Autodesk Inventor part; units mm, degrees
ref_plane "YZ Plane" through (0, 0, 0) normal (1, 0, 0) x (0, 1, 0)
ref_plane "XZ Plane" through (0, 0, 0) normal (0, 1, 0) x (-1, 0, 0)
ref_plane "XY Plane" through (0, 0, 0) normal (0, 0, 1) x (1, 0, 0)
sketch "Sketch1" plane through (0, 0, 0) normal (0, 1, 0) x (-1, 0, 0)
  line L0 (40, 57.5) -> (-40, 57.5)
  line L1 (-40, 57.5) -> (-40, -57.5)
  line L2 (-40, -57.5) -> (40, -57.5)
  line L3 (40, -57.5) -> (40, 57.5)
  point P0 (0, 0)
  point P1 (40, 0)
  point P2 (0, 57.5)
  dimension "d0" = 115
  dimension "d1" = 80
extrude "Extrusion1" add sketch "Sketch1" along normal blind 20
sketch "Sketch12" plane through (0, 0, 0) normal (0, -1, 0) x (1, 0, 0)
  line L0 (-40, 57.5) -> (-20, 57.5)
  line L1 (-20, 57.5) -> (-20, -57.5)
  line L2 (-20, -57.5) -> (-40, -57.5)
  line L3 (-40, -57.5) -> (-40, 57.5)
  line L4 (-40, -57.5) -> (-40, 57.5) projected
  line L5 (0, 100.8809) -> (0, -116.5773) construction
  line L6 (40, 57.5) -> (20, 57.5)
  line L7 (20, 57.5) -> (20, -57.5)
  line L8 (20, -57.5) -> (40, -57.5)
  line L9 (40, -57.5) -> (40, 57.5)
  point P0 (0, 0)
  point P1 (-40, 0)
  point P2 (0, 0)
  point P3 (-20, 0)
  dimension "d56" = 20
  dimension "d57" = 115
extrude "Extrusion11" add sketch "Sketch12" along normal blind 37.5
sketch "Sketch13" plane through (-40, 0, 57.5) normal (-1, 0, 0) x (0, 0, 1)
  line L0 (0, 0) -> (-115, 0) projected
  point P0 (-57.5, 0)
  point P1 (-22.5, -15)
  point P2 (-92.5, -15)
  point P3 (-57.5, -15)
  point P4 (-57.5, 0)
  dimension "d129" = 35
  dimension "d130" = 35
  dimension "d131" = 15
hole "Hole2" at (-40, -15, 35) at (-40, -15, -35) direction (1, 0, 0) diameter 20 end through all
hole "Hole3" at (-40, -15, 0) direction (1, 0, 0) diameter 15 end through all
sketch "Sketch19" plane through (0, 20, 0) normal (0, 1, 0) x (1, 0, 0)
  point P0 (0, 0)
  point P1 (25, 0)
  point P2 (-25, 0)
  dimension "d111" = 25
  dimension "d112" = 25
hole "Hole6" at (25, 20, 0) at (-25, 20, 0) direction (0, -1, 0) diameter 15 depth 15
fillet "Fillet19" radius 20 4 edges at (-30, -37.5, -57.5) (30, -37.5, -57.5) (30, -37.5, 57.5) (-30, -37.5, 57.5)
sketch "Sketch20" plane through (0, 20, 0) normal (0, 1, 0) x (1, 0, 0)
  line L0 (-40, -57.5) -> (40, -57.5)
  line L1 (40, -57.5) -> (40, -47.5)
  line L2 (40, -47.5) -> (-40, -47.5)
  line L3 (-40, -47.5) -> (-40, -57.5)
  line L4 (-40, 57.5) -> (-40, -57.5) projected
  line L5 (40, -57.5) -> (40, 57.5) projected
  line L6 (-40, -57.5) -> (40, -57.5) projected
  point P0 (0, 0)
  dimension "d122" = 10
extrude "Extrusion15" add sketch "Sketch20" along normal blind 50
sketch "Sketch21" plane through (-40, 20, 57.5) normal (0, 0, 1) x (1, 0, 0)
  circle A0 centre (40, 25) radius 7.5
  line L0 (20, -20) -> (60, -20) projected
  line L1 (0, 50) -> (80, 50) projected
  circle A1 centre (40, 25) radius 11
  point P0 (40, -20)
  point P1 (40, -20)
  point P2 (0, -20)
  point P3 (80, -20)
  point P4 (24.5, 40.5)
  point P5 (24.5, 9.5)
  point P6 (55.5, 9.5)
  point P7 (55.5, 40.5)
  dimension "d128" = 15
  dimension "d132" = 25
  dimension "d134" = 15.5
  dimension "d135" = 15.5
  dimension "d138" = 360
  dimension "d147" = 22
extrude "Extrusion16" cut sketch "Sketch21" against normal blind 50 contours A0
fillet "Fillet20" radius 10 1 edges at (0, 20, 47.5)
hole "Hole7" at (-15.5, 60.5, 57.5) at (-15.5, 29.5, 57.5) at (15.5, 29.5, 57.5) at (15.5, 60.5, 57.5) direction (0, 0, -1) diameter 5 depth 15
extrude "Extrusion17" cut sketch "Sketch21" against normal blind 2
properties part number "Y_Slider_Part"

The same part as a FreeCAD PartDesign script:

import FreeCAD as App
import Part
import Sketcher

V = App.Vector
Q = App.Units.Quantity


def edges_at(feature, points):
    """Names of the edges that pass closest to the given points."""
    edges = feature.Shape.Edges
    near = lambda p: min(range(len(edges)), key=lambda i: edges[i].distToShape(Part.Vertex(*p))[0])
    return sorted({f"Edge{near(p) + 1}" for p in points})


def add_polygon(sketch, points):
    """Adds a closed chain of lines whose ends are joined by coincident constraints."""
    first, n = sketch.GeometryCount, len(points)
    for a, b in zip(points, points[1:] + points[:1]):
        sketch.addGeometry(Part.LineSegment(App.Vector(*a, 0), App.Vector(*b, 0)), False)
    for i in range(n):
        sketch.addConstraint(Sketcher.Constraint("Coincident", first + i, 2, first + (i + 1) % n, 1))

doc = App.newDocument("Part")
body = doc.addObject("PartDesign::Body", "Body")

# Sketch on XZ plane
sketch1 = doc.addObject("Sketcher::SketchObject", "Sketch")
body.addObject(sketch1)
sketch1.AttachmentSupport = (doc.XZ_Plane, [""])
sketch1.MapMode = "FlatFace"
add_polygon(sketch1, [(-40, -58), (-40, 58), (40, 58), (40, -58)])  # lines 0-3
sketch1.addConstraint(Sketcher.Constraint("Vertical", 0))
sketch1.addConstraint(Sketcher.Constraint("Horizontal", 1))
sketch1.addConstraint(Sketcher.Constraint("Vertical", 2))
sketch1.addConstraint(Sketcher.Constraint("Horizontal", 3))
sketch1.addConstraint(Sketcher.Constraint("Symmetric", 0, 2, 2, 2, -1, 1))
sketch1.addConstraint(Sketcher.Constraint("DistanceX", 1, 1, 1, 2, Q("80 mm")))
sketch1.addConstraint(Sketcher.Constraint("DistanceY", 0, 1, 0, 2, Q("115 mm")))
pad1 = doc.addObject("PartDesign::Pad", "Pad")
body.addObject(pad1)
pad1.Profile = sketch1
pad1.Length = 20
pad1.Reversed = True

# Sketch on XZ plane
sketch2 = doc.addObject("Sketcher::SketchObject", "Sketch001")
body.addObject(sketch2)
sketch2.AttachmentSupport = (doc.XZ_Plane, [""])
sketch2.MapMode = "FlatFace"
add_polygon(sketch2, [(-20, 58), (-40, 58), (-40, -58), (-20, -58)])  # lines 0-3
add_polygon(sketch2, [(40, -58), (40, 58), (20, 58), (20, -58)])  # lines 4-7
sketch2.addConstraint(Sketcher.Constraint("Horizontal", 0))
sketch2.addConstraint(Sketcher.Constraint("Vertical", 1))
sketch2.addConstraint(Sketcher.Constraint("Horizontal", 2))
sketch2.addConstraint(Sketcher.Constraint("Vertical", 3))
sketch2.addConstraint(Sketcher.Constraint("Vertical", 4))
sketch2.addConstraint(Sketcher.Constraint("Horizontal", 5))
sketch2.addConstraint(Sketcher.Constraint("Vertical", 6))
sketch2.addConstraint(Sketcher.Constraint("Horizontal", 7))
sketch2.addConstraint(Sketcher.Constraint("Symmetric", 1, 2, 4, 2, -1, 1))
sketch2.addConstraint(Sketcher.Constraint("Symmetric", 3, 2, 6, 2, -1, 1))
sketch2.addConstraint(Sketcher.Constraint("Horizontal", 3, 2, 4, 2))
sketch2.addConstraint(Sketcher.Constraint("DistanceX", 0, 2, 0, 1, Q("20 mm")))
sketch2.addConstraint(Sketcher.Constraint("DistanceY", 1, 2, 1, 1, Q("115 mm")))
sketch2.addConstraint(Sketcher.Constraint("DistanceX", 2, 2, -1, 1, Q("20 mm")))
pad2 = doc.addObject("PartDesign::Pad", "Pad001")
body.addObject(pad2)
pad2.Profile = sketch2
pad2.Length = 37.5

# Sketch on YZ plane
sketch3 = doc.addObject("Sketcher::SketchObject", "Sketch002")
body.addObject(sketch3)
sketch3.AttachmentSupport = (doc.YZ_Plane, [""])
sketch3.MapMode = "FlatFace"
sketch3.AttachmentOffset = App.Placement(V(0, 0, -40), App.Rotation())
sketch3.addGeometry(Part.Circle(V(-15, 35, 0), V(0, 0, 1), 10), False)
sketch3.addGeometry(Part.Circle(V(-15, -35, 0), V(0, 0, 1), 10), False)
sketch3.addConstraint(Sketcher.Constraint("Equal", 0, 1))
sketch3.addConstraint(Sketcher.Constraint("Symmetric", 0, 3, 1, 3, -1))
sketch3.addConstraint(Sketcher.Constraint("Diameter", 0, Q("20 mm")))
sketch3.addConstraint(Sketcher.Constraint("DistanceX", 0, 3, -1, 1, Q("15 mm")))
sketch3.addConstraint(Sketcher.Constraint("DistanceY", -1, 1, 0, 3, Q("35 mm")))
doc.recompute()
hole = doc.addObject("PartDesign::Hole", "Hole")
body.addObject(hole)
hole.Profile = sketch3
hole.ThreadType = "None"
hole.Diameter = 20
hole.DepthType = "ThroughAll"
hole.Reversed = True

# Sketch on YZ plane
sketch4 = doc.addObject("Sketcher::SketchObject", "Sketch003")
body.addObject(sketch4)
sketch4.AttachmentSupport = (doc.YZ_Plane, [""])
sketch4.MapMode = "FlatFace"
sketch4.AttachmentOffset = App.Placement(V(0, 0, -40), App.Rotation())
sketch4.addGeometry(Part.Circle(V(-15, 0, 0), V(0, 0, 1), 8), False)
sketch4.addConstraint(Sketcher.Constraint("PointOnObject", 0, 3, -1))
sketch4.addConstraint(Sketcher.Constraint("Diameter", 0, Q("15 mm")))
sketch4.addConstraint(Sketcher.Constraint("DistanceX", 0, 3, -1, 1, Q("15 mm")))
doc.recompute()
hole2 = doc.addObject("PartDesign::Hole", "Hole001")
body.addObject(hole2)
hole2.Profile = sketch4
hole2.ThreadType = "None"
hole2.Diameter = 15
hole2.DepthType = "ThroughAll"
hole2.Reversed = True

# Sketch on XZ plane
sketch5 = doc.addObject("Sketcher::SketchObject", "Sketch004")
body.addObject(sketch5)
sketch5.AttachmentSupport = (doc.XZ_Plane, [""])
sketch5.MapMode = "FlatFace"
sketch5.AttachmentOffset = App.Placement(V(0, 0, -20), App.Rotation())
sketch5.addGeometry(Part.Circle(V(25, 0, 0), V(0, 0, 1), 8), False)
sketch5.addGeometry(Part.Circle(V(-25, 0, 0), V(0, 0, 1), 8), False)
sketch5.addConstraint(Sketcher.Constraint("Equal", 0, 1))
sketch5.addConstraint(Sketcher.Constraint("Symmetric", 0, 3, 1, 3, -1, 1))
sketch5.addConstraint(Sketcher.Constraint("PointOnObject", 0, 3, -1))
sketch5.addConstraint(Sketcher.Constraint("Diameter", 0, Q("15 mm")))
sketch5.addConstraint(Sketcher.Constraint("DistanceX", -1, 1, 0, 3, Q("25 mm")))
doc.recompute()
hole3 = doc.addObject("PartDesign::Hole", "Hole002")
body.addObject(hole3)
hole3.Profile = sketch5
hole3.ThreadType = "None"
hole3.Diameter = 15
hole3.DepthType = "Dimension"
hole3.Depth = 15
hole3.DrillPoint = "Flat"
hole3.Reversed = True
doc.recompute()

fillet = doc.addObject("PartDesign::Fillet", "Fillet")
body.addObject(fillet)
fillet.Base = (hole3, edges_at(hole3, [
    (-30, -37.5, -57.5),
    (30, -37.5, -57.5),
    (30, -37.5, 57.5),
    (-30, -37.5, 57.5),
]))
fillet.Radius = 20

# Sketch on XZ plane
sketch6 = doc.addObject("Sketcher::SketchObject", "Sketch005")
body.addObject(sketch6)
sketch6.AttachmentSupport = (doc.XZ_Plane, [""])
sketch6.MapMode = "FlatFace"
sketch6.AttachmentOffset = App.Placement(V(0, 0, -20), App.Rotation())
add_polygon(sketch6, [(-40, 48), (-40, 58), (40, 58), (40, 48)])  # lines 0-3
sketch6.addConstraint(Sketcher.Constraint("Vertical", 0))
sketch6.addConstraint(Sketcher.Constraint("Horizontal", 1))
sketch6.addConstraint(Sketcher.Constraint("Vertical", 2))
sketch6.addConstraint(Sketcher.Constraint("Horizontal", 3))
sketch6.addConstraint(Sketcher.Constraint("DistanceY", 0, 1, 0, 2, Q("10 mm")))
sketch6.addConstraint(Sketcher.Constraint("DistanceX", 1, 1, 1, 2, Q("80 mm")))
sketch6.addConstraint(Sketcher.Constraint("DistanceX", 0, 2, -1, 1, Q("40 mm")))
sketch6.addConstraint(Sketcher.Constraint("DistanceY", -1, 1, 0, 2, Q("57.5 mm")))
pad3 = doc.addObject("PartDesign::Pad", "Pad002")
body.addObject(pad3)
pad3.Profile = sketch6
pad3.Length = 50
pad3.Reversed = True

# Sketch on XY plane
sketch7 = doc.addObject("Sketcher::SketchObject", "Sketch006")
body.addObject(sketch7)
sketch7.AttachmentSupport = (doc.XY_Plane, [""])
sketch7.MapMode = "FlatFace"
sketch7.AttachmentOffset = App.Placement(V(0, 0, 57.5), App.Rotation())
sketch7.addGeometry(Part.Circle(V(0, 45, 0), V(0, 0, 1), 8), False)
sketch7.addConstraint(Sketcher.Constraint("PointOnObject", 0, 3, -2))
sketch7.addConstraint(Sketcher.Constraint("Diameter", 0, Q("15 mm")))
sketch7.addConstraint(Sketcher.Constraint("DistanceY", -1, 1, 0, 3, Q("45 mm")))
pocket1 = doc.addObject("PartDesign::Pocket", "Pocket")
body.addObject(pocket1)
pocket1.Profile = sketch7
pocket1.Length = 50
doc.recompute()

fillet2 = doc.addObject("PartDesign::Fillet", "Fillet001")
body.addObject(fillet2)
fillet2.Base = (pocket1, edges_at(pocket1, [(0, 20, 47.5)]))
fillet2.Radius = 10

# Sketch on XY plane
sketch8 = doc.addObject("Sketcher::SketchObject", "Sketch007")
body.addObject(sketch8)
sketch8.AttachmentSupport = (doc.XY_Plane, [""])
sketch8.MapMode = "FlatFace"
sketch8.AttachmentOffset = App.Placement(V(0, 0, 57.5), App.Rotation())
sketch8.addGeometry(Part.Circle(V(-15.5, 60.5, 0), V(0, 0, 1), 2.5), False)
sketch8.addGeometry(Part.Circle(V(-15.5, 29.5, 0), V(0, 0, 1), 2.5), False)
sketch8.addGeometry(Part.Circle(V(15.5, 29.5, 0), V(0, 0, 1), 2.5), False)
sketch8.addGeometry(Part.Circle(V(15.5, 60.5, 0), V(0, 0, 1), 2.5), False)
sketch8.addConstraint(Sketcher.Constraint("Equal", 0, 1))
sketch8.addConstraint(Sketcher.Constraint("Equal", 1, 2))
sketch8.addConstraint(Sketcher.Constraint("Equal", 2, 3))
sketch8.addConstraint(Sketcher.Constraint("Symmetric", 1, 3, 2, 3, -2))
sketch8.addConstraint(Sketcher.Constraint("Symmetric", 0, 3, 3, 3, -2))
sketch8.addConstraint(Sketcher.Constraint("Vertical", 0, 3, 1, 3))
sketch8.addConstraint(Sketcher.Constraint("Diameter", 0, Q("5 mm")))
sketch8.addConstraint(Sketcher.Constraint("DistanceY", 1, 3, 0, 3, Q("31 mm")))
sketch8.addConstraint(Sketcher.Constraint("DistanceX", 1, 3, 2, 3, Q("31 mm")))
sketch8.addConstraint(Sketcher.Constraint("DistanceY", -1, 1, 0, 3, Q("60.5 mm")))
doc.recompute()
hole4 = doc.addObject("PartDesign::Hole", "Hole003")
body.addObject(hole4)
hole4.Profile = sketch8
hole4.ThreadType = "None"
hole4.Diameter = 5
hole4.DepthType = "Dimension"
hole4.Depth = 15
hole4.DrillPoint = "Flat"

# Sketch on XY plane
sketch9 = doc.addObject("Sketcher::SketchObject", "Sketch008")
body.addObject(sketch9)
sketch9.AttachmentSupport = (doc.XY_Plane, [""])
sketch9.MapMode = "FlatFace"
sketch9.AttachmentOffset = App.Placement(V(0, 0, 57.5), App.Rotation())
sketch9.addGeometry(Part.Circle(V(0, 45, 0), V(0, 0, 1), 11), False)
sketch9.addGeometry(Part.Circle(V(0, 45, 0), V(0, 0, 1), 8), False)
sketch9.addConstraint(Sketcher.Constraint("Coincident", 1, 3, 0, 3))
sketch9.addConstraint(Sketcher.Constraint("PointOnObject", 0, 3, -2))
sketch9.addConstraint(Sketcher.Constraint("Diameter", 0, Q("22 mm")))
sketch9.addConstraint(Sketcher.Constraint("Diameter", 1, Q("15 mm")))
sketch9.addConstraint(Sketcher.Constraint("DistanceY", -1, 1, 0, 3, Q("45 mm")))
pocket2 = doc.addObject("PartDesign::Pocket", "Pocket001")
body.addObject(pocket2)
pocket2.Profile = sketch9
pocket2.Length = 2

doc.recompute()
